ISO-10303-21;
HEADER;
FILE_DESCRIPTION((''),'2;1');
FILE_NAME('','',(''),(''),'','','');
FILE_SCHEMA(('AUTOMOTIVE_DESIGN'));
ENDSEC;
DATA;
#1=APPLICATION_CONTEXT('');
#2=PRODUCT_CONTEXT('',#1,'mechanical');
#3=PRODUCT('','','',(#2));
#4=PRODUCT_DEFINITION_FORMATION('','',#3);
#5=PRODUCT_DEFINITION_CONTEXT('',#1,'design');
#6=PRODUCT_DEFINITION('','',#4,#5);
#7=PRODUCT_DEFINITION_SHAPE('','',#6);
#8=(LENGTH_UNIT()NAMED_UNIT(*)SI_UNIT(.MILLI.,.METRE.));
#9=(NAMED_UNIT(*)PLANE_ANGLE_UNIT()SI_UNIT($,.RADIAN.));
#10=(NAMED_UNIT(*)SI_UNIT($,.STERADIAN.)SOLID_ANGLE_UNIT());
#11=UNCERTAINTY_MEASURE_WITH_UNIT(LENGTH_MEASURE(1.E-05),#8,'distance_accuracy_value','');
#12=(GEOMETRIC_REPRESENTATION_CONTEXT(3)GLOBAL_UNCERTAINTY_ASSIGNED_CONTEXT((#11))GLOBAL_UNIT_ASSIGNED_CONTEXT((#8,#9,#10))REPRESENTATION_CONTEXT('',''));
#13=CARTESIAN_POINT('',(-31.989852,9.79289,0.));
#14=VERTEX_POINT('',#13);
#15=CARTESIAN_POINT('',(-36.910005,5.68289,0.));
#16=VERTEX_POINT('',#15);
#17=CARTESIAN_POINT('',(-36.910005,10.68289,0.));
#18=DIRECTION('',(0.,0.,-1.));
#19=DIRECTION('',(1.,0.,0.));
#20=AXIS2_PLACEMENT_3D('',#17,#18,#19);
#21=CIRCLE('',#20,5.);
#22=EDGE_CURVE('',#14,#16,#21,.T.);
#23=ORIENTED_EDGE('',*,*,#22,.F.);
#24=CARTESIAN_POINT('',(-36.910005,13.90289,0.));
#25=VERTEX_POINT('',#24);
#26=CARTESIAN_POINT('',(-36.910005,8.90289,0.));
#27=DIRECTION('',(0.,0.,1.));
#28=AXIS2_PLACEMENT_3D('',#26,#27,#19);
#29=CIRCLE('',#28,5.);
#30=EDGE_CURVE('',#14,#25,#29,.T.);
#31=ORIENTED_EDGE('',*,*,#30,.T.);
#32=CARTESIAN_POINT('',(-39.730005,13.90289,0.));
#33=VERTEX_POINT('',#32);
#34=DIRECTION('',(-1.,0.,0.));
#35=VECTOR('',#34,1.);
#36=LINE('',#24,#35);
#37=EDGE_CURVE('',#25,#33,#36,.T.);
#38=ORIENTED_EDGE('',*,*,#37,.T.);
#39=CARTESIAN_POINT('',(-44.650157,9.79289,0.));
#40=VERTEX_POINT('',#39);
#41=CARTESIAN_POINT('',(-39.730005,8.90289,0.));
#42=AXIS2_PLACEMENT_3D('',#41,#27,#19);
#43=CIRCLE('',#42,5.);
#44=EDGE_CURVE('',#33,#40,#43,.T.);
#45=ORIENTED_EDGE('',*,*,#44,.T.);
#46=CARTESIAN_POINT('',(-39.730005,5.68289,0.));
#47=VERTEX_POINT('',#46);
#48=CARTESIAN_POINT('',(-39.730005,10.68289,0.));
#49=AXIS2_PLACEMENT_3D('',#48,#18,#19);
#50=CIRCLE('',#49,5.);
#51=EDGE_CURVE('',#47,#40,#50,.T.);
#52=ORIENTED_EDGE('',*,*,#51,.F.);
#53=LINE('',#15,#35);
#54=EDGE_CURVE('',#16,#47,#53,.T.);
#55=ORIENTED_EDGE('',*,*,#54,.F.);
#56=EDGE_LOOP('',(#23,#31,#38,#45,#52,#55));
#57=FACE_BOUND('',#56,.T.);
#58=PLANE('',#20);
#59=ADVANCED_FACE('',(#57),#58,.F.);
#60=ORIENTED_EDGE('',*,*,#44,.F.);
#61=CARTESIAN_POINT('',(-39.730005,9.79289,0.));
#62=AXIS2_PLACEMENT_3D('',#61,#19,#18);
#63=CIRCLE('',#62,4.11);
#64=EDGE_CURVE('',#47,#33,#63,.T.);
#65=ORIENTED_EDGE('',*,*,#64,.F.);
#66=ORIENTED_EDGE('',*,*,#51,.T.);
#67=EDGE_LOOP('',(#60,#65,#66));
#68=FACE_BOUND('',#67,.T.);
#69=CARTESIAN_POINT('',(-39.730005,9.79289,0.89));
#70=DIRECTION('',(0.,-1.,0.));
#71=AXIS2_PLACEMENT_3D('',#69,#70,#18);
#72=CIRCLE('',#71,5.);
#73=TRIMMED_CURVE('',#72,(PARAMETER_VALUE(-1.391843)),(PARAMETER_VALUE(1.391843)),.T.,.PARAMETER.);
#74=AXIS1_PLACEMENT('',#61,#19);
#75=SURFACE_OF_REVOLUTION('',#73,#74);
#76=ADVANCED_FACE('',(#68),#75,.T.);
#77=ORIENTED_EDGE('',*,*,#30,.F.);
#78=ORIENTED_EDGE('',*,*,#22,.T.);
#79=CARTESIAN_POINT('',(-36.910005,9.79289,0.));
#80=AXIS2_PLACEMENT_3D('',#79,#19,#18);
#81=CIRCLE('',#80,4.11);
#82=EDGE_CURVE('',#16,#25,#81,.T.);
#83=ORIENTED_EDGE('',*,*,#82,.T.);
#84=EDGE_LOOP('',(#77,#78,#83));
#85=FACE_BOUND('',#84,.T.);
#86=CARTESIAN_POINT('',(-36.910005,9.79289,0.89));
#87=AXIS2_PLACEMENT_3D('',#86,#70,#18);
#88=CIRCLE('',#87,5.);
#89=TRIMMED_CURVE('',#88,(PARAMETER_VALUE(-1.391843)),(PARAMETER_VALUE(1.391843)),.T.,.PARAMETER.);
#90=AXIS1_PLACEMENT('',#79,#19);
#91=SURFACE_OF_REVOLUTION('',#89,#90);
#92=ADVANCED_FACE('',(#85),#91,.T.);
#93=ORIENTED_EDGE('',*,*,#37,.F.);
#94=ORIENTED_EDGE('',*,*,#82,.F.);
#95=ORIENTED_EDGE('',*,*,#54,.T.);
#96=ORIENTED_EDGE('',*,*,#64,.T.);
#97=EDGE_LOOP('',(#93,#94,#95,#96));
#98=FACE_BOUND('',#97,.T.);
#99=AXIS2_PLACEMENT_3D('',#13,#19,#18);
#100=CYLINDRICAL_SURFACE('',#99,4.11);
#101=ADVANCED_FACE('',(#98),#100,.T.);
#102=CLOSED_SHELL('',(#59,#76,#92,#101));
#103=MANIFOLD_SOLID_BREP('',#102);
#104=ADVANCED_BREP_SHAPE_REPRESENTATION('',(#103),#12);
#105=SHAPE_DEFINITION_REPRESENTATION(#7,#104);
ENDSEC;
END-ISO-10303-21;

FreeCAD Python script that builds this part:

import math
import FreeCAD as App
import Part
import Sketcher

V = App.Vector

doc = App.newDocument("Part")
body = doc.addObject("PartDesign::Body", "Body")

sketch1 = body.newObject("Sketcher::SketchObject", "Sketch")
sketch1.AttachmentSupport = (doc.getObject("XY_Plane"), [""])
sketch1.MapMode = "FlatFace"
sketch1.addGeometry(Part.LineSegment(V(-44.650157, 9.79289, 0), V(-31.989852, 9.79289, 0)), False)
sketch1.addGeometry(Part.ArcOfCircle(Part.Circle(V(-36.910005, 8.90289, 0), V(0, 0, 1), 5), math.radians(10.253287), math.radians(90)), False)
sketch1.addGeometry(Part.LineSegment(V(-36.910005, 13.90289, 0), V(-39.730005, 13.90289, 0)), False)
sketch1.addGeometry(Part.ArcOfCircle(Part.Circle(V(-39.730005, 8.90289, 0), V(0, 0, 1), 5), math.radians(90), math.radians(169.746713)), False)
sketch1.addGeometry(Part.LineSegment(V(-31.989852, 9.79289, 0), V(-44.650157, 9.79289, 0)), True)
sketch1.addConstraint(Sketcher.Constraint("Coincident", 0, 2, 1, 1))
sketch1.addConstraint(Sketcher.Constraint("Tangent", 1, 2, 2, 1))
sketch1.addConstraint(Sketcher.Constraint("Tangent", 2, 2, 3, 1))
sketch1.addConstraint(Sketcher.Constraint("Coincident", 3, 2, 0, 1))
sketch1.addConstraint(Sketcher.Constraint("Horizontal", 0))
sketch1.addConstraint(Sketcher.Constraint("Horizontal", 2))
sketch1.addConstraint(Sketcher.Constraint("Horizontal", 4))
sketch1.addConstraint(Sketcher.Constraint("Coincident", 4, 1, 0, 2))
sketch1.addConstraint(Sketcher.Constraint("Equal", 1, 3))
sketch1.addConstraint(Sketcher.Constraint("Equal", 0, 4))
sketch1.addConstraint(Sketcher.Constraint("Radius", 1, 5.0))
sketch1.addConstraint(Sketcher.Constraint("DistanceX", 2, 2, 2, 1, 2.82))
sketch1.addConstraint(Sketcher.Constraint("DistanceY", 1, 3, 0, 2, 0.89))
sketch1.addConstraint(Sketcher.Constraint("DistanceY", -1, 1, 1, 3, 8.90289))
sketch1.addConstraint(Sketcher.Constraint("DistanceX", 1, 3, -1, 1, 36.910005))
revolution = body.newObject("PartDesign::Revolution", "Revolution")
revolution.Profile = sketch1
revolution.ReferenceAxis = (sketch1, ["Axis0"])
revolution.Angle = 180

doc.recompute()
